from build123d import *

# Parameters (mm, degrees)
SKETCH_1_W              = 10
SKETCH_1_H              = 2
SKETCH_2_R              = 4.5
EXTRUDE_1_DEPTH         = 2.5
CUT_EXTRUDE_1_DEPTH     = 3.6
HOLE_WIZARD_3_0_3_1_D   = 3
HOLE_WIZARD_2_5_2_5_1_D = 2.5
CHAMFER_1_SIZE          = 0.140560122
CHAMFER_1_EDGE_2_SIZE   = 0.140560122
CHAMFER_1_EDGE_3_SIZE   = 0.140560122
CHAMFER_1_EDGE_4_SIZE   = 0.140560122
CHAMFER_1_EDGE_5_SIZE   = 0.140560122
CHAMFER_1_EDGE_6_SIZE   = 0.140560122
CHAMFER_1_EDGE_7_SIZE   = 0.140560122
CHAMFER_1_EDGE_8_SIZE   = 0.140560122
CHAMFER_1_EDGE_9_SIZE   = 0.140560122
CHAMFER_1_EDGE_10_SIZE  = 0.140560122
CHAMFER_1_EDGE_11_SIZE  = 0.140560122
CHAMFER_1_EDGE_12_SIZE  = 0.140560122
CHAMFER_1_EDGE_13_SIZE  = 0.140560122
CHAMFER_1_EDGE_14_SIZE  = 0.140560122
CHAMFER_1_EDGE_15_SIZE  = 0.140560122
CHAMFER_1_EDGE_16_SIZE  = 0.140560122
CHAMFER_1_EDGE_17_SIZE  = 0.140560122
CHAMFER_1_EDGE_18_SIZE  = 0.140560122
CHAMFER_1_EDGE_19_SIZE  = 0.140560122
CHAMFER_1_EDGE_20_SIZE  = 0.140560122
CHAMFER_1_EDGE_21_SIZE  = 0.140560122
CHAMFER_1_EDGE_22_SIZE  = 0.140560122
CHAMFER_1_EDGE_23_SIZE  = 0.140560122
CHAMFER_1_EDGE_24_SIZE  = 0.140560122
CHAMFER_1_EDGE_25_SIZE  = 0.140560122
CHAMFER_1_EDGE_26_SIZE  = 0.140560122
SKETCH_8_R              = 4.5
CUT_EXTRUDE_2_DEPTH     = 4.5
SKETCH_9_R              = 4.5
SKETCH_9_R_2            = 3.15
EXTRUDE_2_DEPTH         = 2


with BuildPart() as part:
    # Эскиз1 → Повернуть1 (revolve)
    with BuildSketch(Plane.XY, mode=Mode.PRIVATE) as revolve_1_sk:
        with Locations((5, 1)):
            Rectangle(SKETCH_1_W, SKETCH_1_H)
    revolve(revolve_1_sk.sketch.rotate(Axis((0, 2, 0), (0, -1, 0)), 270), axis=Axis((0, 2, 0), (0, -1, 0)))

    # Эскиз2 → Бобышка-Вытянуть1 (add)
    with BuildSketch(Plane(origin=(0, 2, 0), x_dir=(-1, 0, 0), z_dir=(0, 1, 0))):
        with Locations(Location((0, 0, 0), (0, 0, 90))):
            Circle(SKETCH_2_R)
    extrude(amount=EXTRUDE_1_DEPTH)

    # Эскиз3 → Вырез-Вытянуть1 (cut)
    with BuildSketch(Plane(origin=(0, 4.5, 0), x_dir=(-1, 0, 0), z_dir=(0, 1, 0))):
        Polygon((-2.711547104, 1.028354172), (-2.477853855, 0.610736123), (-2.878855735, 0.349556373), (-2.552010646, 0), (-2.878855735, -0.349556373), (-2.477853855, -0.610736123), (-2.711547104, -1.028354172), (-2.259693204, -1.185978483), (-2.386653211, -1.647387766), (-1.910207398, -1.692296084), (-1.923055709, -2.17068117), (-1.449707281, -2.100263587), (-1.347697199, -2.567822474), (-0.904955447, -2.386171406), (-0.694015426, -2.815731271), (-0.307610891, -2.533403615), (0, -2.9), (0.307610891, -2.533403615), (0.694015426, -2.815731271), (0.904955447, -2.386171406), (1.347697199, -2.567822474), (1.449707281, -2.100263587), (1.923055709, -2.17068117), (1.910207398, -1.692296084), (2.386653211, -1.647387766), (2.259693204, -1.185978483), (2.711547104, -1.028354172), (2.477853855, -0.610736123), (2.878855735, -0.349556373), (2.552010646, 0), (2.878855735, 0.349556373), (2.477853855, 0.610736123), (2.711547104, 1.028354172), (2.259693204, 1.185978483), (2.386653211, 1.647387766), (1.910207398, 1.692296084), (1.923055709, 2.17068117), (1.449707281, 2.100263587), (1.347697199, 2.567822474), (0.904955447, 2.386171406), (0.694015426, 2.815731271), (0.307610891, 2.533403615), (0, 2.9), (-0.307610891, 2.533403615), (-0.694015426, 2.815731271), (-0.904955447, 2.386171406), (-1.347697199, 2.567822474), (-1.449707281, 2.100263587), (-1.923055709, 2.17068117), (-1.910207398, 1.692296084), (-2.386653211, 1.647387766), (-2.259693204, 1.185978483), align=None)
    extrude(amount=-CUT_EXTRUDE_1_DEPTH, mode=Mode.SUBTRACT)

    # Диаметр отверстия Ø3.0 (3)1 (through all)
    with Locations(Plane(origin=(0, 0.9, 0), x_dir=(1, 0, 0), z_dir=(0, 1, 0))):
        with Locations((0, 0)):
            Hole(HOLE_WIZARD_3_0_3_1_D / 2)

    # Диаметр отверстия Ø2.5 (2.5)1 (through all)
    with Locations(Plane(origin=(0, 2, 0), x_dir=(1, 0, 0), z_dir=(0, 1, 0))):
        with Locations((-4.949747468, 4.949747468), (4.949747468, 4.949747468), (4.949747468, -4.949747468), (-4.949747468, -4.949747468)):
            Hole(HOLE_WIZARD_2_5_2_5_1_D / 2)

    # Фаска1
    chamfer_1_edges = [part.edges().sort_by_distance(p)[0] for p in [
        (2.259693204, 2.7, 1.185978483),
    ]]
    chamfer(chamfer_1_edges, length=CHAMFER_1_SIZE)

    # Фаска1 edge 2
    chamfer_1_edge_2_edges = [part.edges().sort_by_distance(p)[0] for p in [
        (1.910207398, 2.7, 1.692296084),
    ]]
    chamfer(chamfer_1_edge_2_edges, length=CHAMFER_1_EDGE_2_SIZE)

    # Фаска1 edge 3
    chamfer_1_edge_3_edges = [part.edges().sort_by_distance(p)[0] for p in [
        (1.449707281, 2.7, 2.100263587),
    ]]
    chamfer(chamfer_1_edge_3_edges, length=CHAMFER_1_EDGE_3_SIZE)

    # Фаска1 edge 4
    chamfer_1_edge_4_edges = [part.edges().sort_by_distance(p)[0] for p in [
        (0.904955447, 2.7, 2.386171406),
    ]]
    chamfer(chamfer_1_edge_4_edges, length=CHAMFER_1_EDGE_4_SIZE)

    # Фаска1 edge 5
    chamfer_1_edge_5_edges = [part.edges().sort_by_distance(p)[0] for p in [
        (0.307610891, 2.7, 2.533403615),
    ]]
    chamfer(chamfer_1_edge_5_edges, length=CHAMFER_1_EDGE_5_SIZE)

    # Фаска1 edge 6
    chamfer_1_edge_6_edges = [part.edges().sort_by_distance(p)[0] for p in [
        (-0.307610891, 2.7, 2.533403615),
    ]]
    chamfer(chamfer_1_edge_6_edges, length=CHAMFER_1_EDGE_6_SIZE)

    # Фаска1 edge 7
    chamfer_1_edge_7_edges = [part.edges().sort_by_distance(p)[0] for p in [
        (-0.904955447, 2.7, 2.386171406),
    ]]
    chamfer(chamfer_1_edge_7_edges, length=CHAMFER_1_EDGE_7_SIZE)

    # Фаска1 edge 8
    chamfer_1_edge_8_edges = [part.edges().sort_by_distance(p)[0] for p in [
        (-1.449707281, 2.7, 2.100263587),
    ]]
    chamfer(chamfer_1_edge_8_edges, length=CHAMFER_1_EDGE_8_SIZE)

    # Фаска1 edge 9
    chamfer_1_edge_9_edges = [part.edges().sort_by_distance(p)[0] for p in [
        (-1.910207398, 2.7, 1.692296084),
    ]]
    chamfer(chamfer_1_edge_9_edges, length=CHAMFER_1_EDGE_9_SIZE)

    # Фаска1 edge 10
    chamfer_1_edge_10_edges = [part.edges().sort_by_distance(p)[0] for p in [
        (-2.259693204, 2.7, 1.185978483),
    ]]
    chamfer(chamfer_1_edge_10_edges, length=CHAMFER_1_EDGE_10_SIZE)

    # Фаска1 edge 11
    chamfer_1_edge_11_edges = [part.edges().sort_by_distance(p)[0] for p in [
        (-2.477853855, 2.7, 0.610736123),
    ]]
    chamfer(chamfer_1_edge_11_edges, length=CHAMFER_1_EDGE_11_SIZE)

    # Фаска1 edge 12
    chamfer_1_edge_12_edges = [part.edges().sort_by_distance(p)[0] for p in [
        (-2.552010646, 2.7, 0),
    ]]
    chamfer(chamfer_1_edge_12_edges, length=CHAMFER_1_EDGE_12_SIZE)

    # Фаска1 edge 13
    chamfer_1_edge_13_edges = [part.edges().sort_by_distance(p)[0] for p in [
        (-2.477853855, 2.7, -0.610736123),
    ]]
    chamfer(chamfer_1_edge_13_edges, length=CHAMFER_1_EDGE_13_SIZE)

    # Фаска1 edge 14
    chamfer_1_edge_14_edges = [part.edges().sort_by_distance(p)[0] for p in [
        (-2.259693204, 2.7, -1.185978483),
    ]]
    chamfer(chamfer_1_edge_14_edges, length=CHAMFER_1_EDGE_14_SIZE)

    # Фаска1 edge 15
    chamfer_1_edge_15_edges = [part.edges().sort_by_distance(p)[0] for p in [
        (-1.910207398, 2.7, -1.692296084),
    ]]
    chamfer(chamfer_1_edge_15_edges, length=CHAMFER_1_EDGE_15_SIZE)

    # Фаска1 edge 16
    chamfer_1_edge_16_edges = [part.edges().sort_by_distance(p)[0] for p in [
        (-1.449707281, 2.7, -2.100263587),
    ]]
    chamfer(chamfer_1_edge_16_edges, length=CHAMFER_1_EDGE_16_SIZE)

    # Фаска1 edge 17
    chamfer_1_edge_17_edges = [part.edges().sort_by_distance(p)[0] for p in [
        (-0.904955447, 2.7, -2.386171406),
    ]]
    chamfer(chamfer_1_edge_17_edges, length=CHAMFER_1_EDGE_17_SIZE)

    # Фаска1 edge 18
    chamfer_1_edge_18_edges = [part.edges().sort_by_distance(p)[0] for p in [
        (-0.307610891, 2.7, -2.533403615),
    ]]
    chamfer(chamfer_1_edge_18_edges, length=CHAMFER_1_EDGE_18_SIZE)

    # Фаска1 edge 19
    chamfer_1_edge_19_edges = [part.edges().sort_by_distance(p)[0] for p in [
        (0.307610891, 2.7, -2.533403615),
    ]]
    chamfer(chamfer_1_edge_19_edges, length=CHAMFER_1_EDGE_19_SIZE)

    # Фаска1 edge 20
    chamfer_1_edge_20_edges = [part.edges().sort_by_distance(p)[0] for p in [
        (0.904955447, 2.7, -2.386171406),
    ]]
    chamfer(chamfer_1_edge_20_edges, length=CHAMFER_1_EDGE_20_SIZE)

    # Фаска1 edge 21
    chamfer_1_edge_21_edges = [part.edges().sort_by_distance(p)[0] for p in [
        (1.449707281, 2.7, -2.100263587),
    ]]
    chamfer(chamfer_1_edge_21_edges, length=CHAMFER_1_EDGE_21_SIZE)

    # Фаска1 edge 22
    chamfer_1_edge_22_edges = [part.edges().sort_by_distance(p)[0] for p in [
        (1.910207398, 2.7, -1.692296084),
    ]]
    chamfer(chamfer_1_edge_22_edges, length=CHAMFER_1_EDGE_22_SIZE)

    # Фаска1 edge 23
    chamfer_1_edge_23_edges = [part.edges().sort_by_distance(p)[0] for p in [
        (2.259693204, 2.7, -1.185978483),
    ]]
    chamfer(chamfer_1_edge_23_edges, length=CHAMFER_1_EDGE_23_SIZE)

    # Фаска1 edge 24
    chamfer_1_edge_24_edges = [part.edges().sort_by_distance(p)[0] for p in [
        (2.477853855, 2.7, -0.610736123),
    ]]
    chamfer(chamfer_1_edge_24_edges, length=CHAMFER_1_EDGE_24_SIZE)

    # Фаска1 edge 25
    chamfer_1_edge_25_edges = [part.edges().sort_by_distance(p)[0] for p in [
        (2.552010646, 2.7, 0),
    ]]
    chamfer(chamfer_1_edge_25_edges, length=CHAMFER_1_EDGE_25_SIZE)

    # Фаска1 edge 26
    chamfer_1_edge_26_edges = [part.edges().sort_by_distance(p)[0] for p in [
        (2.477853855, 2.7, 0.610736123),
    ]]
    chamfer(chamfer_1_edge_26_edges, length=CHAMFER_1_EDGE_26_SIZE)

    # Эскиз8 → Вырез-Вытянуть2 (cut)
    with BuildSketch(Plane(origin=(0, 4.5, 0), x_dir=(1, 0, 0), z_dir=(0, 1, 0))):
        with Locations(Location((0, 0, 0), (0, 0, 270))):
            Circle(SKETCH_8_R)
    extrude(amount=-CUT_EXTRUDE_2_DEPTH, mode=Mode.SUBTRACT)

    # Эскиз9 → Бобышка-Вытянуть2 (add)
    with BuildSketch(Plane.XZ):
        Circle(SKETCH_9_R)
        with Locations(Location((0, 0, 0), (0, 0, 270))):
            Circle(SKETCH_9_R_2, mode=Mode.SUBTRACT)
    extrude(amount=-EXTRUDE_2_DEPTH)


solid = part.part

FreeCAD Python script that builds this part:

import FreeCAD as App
import Part
import Sketcher
from FreeCAD import Vector
Q = App.Units.Quantity


def edges_at(feature, points):
    """Names of the edges that pass closest to the given points."""
    edges = feature.Shape.Edges
    near = lambda p: min(range(len(edges)), key=lambda i: edges[i].distToShape(Part.Vertex(*p))[0])
    return sorted({f"Edge{near(p) + 1}" for p in points})

doc = App.newDocument("Part")
body = doc.addObject("PartDesign::Body", "Body")

# Sketch on XY plane
sketch1 = body.newObject("Sketcher::SketchObject", "Sketch")
sketch1.AttachmentSupport = (doc.getObject("XY_Plane"), [""])
sketch1.MapMode = "FlatFace"
sketch1.addGeometry(Part.LineSegment(Vector(0, 2, 0), Vector(0, 0, 0)), False)
sketch1.addGeometry(Part.LineSegment(Vector(0, 0, 0), Vector(10, 0, 0)), False)
sketch1.addGeometry(Part.LineSegment(Vector(10, 0, 0), Vector(10, 2, 0)), False)
sketch1.addGeometry(Part.LineSegment(Vector(10, 2, 0), Vector(0, 2, 0)), False)
sketch1.addConstraint(Sketcher.Constraint("Coincident", 0, 2, 1, 1))
sketch1.addConstraint(Sketcher.Constraint("Coincident", 1, 2, 2, 1))
sketch1.addConstraint(Sketcher.Constraint("Coincident", 2, 2, 3, 1))
sketch1.addConstraint(Sketcher.Constraint("Coincident", 3, 2, 0, 1))
sketch1.addConstraint(Sketcher.Constraint("Vertical", 0))
sketch1.addConstraint(Sketcher.Constraint("Horizontal", 1))
sketch1.addConstraint(Sketcher.Constraint("Vertical", 2))
sketch1.addConstraint(Sketcher.Constraint("Horizontal", 3))
sketch1.addConstraint(Sketcher.Constraint("Coincident", 0, 2, -1, 1))
sketch1.addConstraint(Sketcher.Constraint("DistanceX", 1, 1, 1, 2, Q("10 mm")))
sketch1.addConstraint(Sketcher.Constraint("DistanceY", 0, 2, 0, 1, Q("2 mm")))
revolution = body.newObject("PartDesign::Revolution", "Revolution")
revolution.Profile = sketch1
revolution.ReferenceAxis = (sketch1, ["V_Axis"])
revolution.Angle = 360

# Sketch on XZ plane
sketch2 = body.newObject("Sketcher::SketchObject", "Sketch001")
sketch2.AttachmentSupport = (doc.getObject("XZ_Plane"), [""])
sketch2.MapMode = "FlatFace"
sketch2.AttachmentOffset = App.Placement(Vector(0, 0, -2), App.Rotation())
sketch2.addGeometry(Part.Circle(Vector(0, 0, 0), Vector(0, 0, 1), 4.5), False)
sketch2.addConstraint(Sketcher.Constraint("Coincident", 0, 3, -1, 1))
sketch2.addConstraint(Sketcher.Constraint("Diameter", 0, Q("9 mm")))
pad1 = body.newObject("PartDesign::Pad", "Pad")
pad1.Profile = sketch2
pad1.Length = 2.5
pad1.Reversed = True

# Sketch on XZ plane
sketch3 = body.newObject("Sketcher::SketchObject", "Sketch002")
sketch3.AttachmentSupport = (doc.getObject("XZ_Plane"), [""])
sketch3.MapMode = "FlatFace"
sketch3.AttachmentOffset = App.Placement(Vector(0, 0, -4.5), App.Rotation())
sketch3.addGeometry(Part.LineSegment(Vector(2.71, 1.03, 0), Vector(2.48, 0.61, 0)), False)
sketch3.addGeometry(Part.LineSegment(Vector(2.48, 0.61, 0), Vector(2.88, 0.35, 0)), False)
sketch3.addGeometry(Part.LineSegment(Vector(2.88, 0.35, 0), Vector(2.55, 0, 0)), False)
sketch3.addGeometry(Part.LineSegment(Vector(2.55, 0, 0), Vector(2.88, -0.35, 0)), False)
sketch3.addGeometry(Part.LineSegment(Vector(2.88, -0.35, 0), Vector(2.48, -0.61, 0)), False)
sketch3.addGeometry(Part.LineSegment(Vector(2.48, -0.61, 0), Vector(2.71, -1.03, 0)), False)
sketch3.addGeometry(Part.LineSegment(Vector(2.71, -1.03, 0), Vector(2.26, -1.19, 0)), False)
sketch3.addGeometry(Part.LineSegment(Vector(2.26, -1.19, 0), Vector(2.39, -1.65, 0)), False)
sketch3.addGeometry(Part.LineSegment(Vector(2.39, -1.65, 0), Vector(1.91, -1.69, 0)), False)
sketch3.addGeometry(Part.LineSegment(Vector(1.91, -1.69, 0), Vector(1.92, -2.17, 0)), False)
sketch3.addGeometry(Part.LineSegment(Vector(1.92, -2.17, 0), Vector(1.45, -2.1, 0)), False)
sketch3.addGeometry(Part.LineSegment(Vector(1.45, -2.1, 0), Vector(1.35, -2.57, 0)), False)
sketch3.addGeometry(Part.LineSegment(Vector(1.35, -2.57, 0), Vector(0.9, -2.39, 0)), False)
sketch3.addGeometry(Part.LineSegment(Vector(0.9, -2.39, 0), Vector(0.69, -2.82, 0)), False)
sketch3.addGeometry(Part.LineSegment(Vector(0.69, -2.82, 0), Vector(0.31, -2.53, 0)), False)
sketch3.addGeometry(Part.LineSegment(Vector(0.31, -2.53, 0), Vector(0, -2.9, 0)), False)
sketch3.addGeometry(Part.LineSegment(Vector(0, -2.9, 0), Vector(-0.31, -2.53, 0)), False)
sketch3.addGeometry(Part.LineSegment(Vector(-0.31, -2.53, 0), Vector(-0.69, -2.82, 0)), False)
sketch3.addGeometry(Part.LineSegment(Vector(-0.69, -2.82, 0), Vector(-0.9, -2.39, 0)), False)
sketch3.addGeometry(Part.LineSegment(Vector(-0.9, -2.39, 0), Vector(-1.35, -2.57, 0)), False)
sketch3.addGeometry(Part.LineSegment(Vector(-1.35, -2.57, 0), Vector(-1.45, -2.1, 0)), False)
sketch3.addGeometry(Part.LineSegment(Vector(-1.45, -2.1, 0), Vector(-1.92, -2.17, 0)), False)
sketch3.addGeometry(Part.LineSegment(Vector(-1.92, -2.17, 0), Vector(-1.91, -1.69, 0)), False)
sketch3.addGeometry(Part.LineSegment(Vector(-1.91, -1.69, 0), Vector(-2.39, -1.65, 0)), False)
sketch3.addGeometry(Part.LineSegment(Vector(-2.39, -1.65, 0), Vector(-2.26, -1.19, 0)), False)
sketch3.addGeometry(Part.LineSegment(Vector(-2.26, -1.19, 0), Vector(-2.71, -1.03, 0)), False)
sketch3.addGeometry(Part.LineSegment(Vector(-2.71, -1.03, 0), Vector(-2.48, -0.61, 0)), False)
sketch3.addGeometry(Part.LineSegment(Vector(-2.48, -0.61, 0), Vector(-2.88, -0.35, 0)), False)
sketch3.addGeometry(Part.LineSegment(Vector(-2.88, -0.35, 0), Vector(-2.55, 0, 0)), False)
sketch3.addGeometry(Part.LineSegment(Vector(-2.55, 0, 0), Vector(-2.88, 0.35, 0)), False)
sketch3.addGeometry(Part.LineSegment(Vector(-2.88, 0.35, 0), Vector(-2.48, 0.61, 0)), False)
sketch3.addGeometry(Part.LineSegment(Vector(-2.48, 0.61, 0), Vector(-2.71, 1.03, 0)), False)
sketch3.addGeometry(Part.LineSegment(Vector(-2.71, 1.03, 0), Vector(-2.26, 1.19, 0)), False)
sketch3.addGeometry(Part.LineSegment(Vector(-2.26, 1.19, 0), Vector(-2.39, 1.65, 0)), False)
sketch3.addGeometry(Part.LineSegment(Vector(-2.39, 1.65, 0), Vector(-1.91, 1.69, 0)), False)
sketch3.addGeometry(Part.LineSegment(Vector(-1.91, 1.69, 0), Vector(-1.92, 2.17, 0)), False)
sketch3.addGeometry(Part.LineSegment(Vector(-1.92, 2.17, 0), Vector(-1.45, 2.1, 0)), False)
sketch3.addGeometry(Part.LineSegment(Vector(-1.45, 2.1, 0), Vector(-1.35, 2.57, 0)), False)
sketch3.addGeometry(Part.LineSegment(Vector(-1.35, 2.57, 0), Vector(-0.9, 2.39, 0)), False)
sketch3.addGeometry(Part.LineSegment(Vector(-0.9, 2.39, 0), Vector(-0.69, 2.82, 0)), False)
sketch3.addGeometry(Part.LineSegment(Vector(-0.69, 2.82, 0), Vector(-0.31, 2.53, 0)), False)
sketch3.addGeometry(Part.LineSegment(Vector(-0.31, 2.53, 0), Vector(0, 2.9, 0)), False)
sketch3.addGeometry(Part.LineSegment(Vector(0, 2.9, 0), Vector(0.31, 2.53, 0)), False)
sketch3.addGeometry(Part.LineSegment(Vector(0.31, 2.53, 0), Vector(0.69, 2.82, 0)), False)
sketch3.addGeometry(Part.LineSegment(Vector(0.69, 2.82, 0), Vector(0.9, 2.39, 0)), False)
sketch3.addGeometry(Part.LineSegment(Vector(0.9, 2.39, 0), Vector(1.35, 2.57, 0)), False)
sketch3.addGeometry(Part.LineSegment(Vector(1.35, 2.57, 0), Vector(1.45, 2.1, 0)), False)
sketch3.addGeometry(Part.LineSegment(Vector(1.45, 2.1, 0), Vector(1.92, 2.17, 0)), False)
sketch3.addGeometry(Part.LineSegment(Vector(1.92, 2.17, 0), Vector(1.91, 1.69, 0)), False)
sketch3.addGeometry(Part.LineSegment(Vector(1.91, 1.69, 0), Vector(2.39, 1.65, 0)), False)
sketch3.addGeometry(Part.LineSegment(Vector(2.39, 1.65, 0), Vector(2.26, 1.19, 0)), False)
sketch3.addGeometry(Part.LineSegment(Vector(2.26, 1.19, 0), Vector(2.71, 1.03, 0)), False)
sketch3.addConstraint(Sketcher.Constraint("Coincident", 0, 2, 1, 1))
sketch3.addConstraint(Sketcher.Constraint("Coincident", 1, 2, 2, 1))
sketch3.addConstraint(Sketcher.Constraint("Coincident", 2, 2, 3, 1))
sketch3.addConstraint(Sketcher.Constraint("Coincident", 3, 2, 4, 1))
sketch3.addConstraint(Sketcher.Constraint("Coincident", 4, 2, 5, 1))
sketch3.addConstraint(Sketcher.Constraint("Coincident", 5, 2, 6, 1))
sketch3.addConstraint(Sketcher.Constraint("Coincident", 6, 2, 7, 1))
sketch3.addConstraint(Sketcher.Constraint("Coincident", 7, 2, 8, 1))
sketch3.addConstraint(Sketcher.Constraint("Coincident", 8, 2, 9, 1))
sketch3.addConstraint(Sketcher.Constraint("Coincident", 9, 2, 10, 1))
sketch3.addConstraint(Sketcher.Constraint("Coincident", 10, 2, 11, 1))
sketch3.addConstraint(Sketcher.Constraint("Coincident", 11, 2, 12, 1))
sketch3.addConstraint(Sketcher.Constraint("Coincident", 12, 2, 13, 1))
sketch3.addConstraint(Sketcher.Constraint("Coincident", 13, 2, 14, 1))
sketch3.addConstraint(Sketcher.Constraint("Coincident", 14, 2, 15, 1))
sketch3.addConstraint(Sketcher.Constraint("Coincident", 15, 2, 16, 1))
sketch3.addConstraint(Sketcher.Constraint("Coincident", 16, 2, 17, 1))
sketch3.addConstraint(Sketcher.Constraint("Coincident", 17, 2, 18, 1))
sketch3.addConstraint(Sketcher.Constraint("Coincident", 18, 2, 19, 1))
sketch3.addConstraint(Sketcher.Constraint("Coincident", 19, 2, 20, 1))
sketch3.addConstraint(Sketcher.Constraint("Coincident", 20, 2, 21, 1))
sketch3.addConstraint(Sketcher.Constraint("Coincident", 21, 2, 22, 1))
sketch3.addConstraint(Sketcher.Constraint("Coincident", 22, 2, 23, 1))
sketch3.addConstraint(Sketcher.Constraint("Coincident", 23, 2, 24, 1))
sketch3.addConstraint(Sketcher.Constraint("Coincident", 24, 2, 25, 1))
sketch3.addConstraint(Sketcher.Constraint("Coincident", 25, 2, 26, 1))
sketch3.addConstraint(Sketcher.Constraint("Coincident", 26, 2, 27, 1))
sketch3.addConstraint(Sketcher.Constraint("Coincident", 27, 2, 28, 1))
sketch3.addConstraint(Sketcher.Constraint("Coincident", 28, 2, 29, 1))
sketch3.addConstraint(Sketcher.Constraint("Coincident", 29, 2, 30, 1))
sketch3.addConstraint(Sketcher.Constraint("Coincident", 30, 2, 31, 1))
sketch3.addConstraint(Sketcher.Constraint("Coincident", 31, 2, 32, 1))
sketch3.addConstraint(Sketcher.Constraint("Coincident", 32, 2, 33, 1))
sketch3.addConstraint(Sketcher.Constraint("Coincident", 33, 2, 34, 1))
sketch3.addConstraint(Sketcher.Constraint("Coincident", 34, 2, 35, 1))
sketch3.addConstraint(Sketcher.Constraint("Coincident", 35, 2, 36, 1))
sketch3.addConstraint(Sketcher.Constraint("Coincident", 36, 2, 37, 1))
sketch3.addConstraint(Sketcher.Constraint("Coincident", 37, 2, 38, 1))
sketch3.addConstraint(Sketcher.Constraint("Coincident", 38, 2, 39, 1))
sketch3.addConstraint(Sketcher.Constraint("Coincident", 39, 2, 40, 1))
sketch3.addConstraint(Sketcher.Constraint("Coincident", 40, 2, 41, 1))
sketch3.addConstraint(Sketcher.Constraint("Coincident", 41, 2, 42, 1))
sketch3.addConstraint(Sketcher.Constraint("Coincident", 42, 2, 43, 1))
sketch3.addConstraint(Sketcher.Constraint("Coincident", 43, 2, 44, 1))
sketch3.addConstraint(Sketcher.Constraint("Coincident", 44, 2, 45, 1))
sketch3.addConstraint(Sketcher.Constraint("Coincident", 45, 2, 46, 1))
sketch3.addConstraint(Sketcher.Constraint("Coincident", 46, 2, 47, 1))
sketch3.addConstraint(Sketcher.Constraint("Coincident", 47, 2, 48, 1))
sketch3.addConstraint(Sketcher.Constraint("Coincident", 48, 2, 49, 1))
sketch3.addConstraint(Sketcher.Constraint("Coincident", 49, 2, 50, 1))
sketch3.addConstraint(Sketcher.Constraint("Coincident", 50, 2, 51, 1))
sketch3.addConstraint(Sketcher.Constraint("Coincident", 51, 2, 0, 1))
sketch3.addConstraint(Sketcher.Constraint("Symmetric", 0, 2, 26, 2, -1, 1))
sketch3.addConstraint(Sketcher.Constraint("Symmetric", 1, 2, 27, 2, -1, 1))
sketch3.addConstraint(Sketcher.Constraint("Symmetric", 2, 2, 28, 2, -1, 1))
sketch3.addConstraint(Sketcher.Constraint("Symmetric", 3, 2, 29, 2, -1, 1))
sketch3.addConstraint(Sketcher.Constraint("Symmetric", 4, 2, 30, 2, -1, 1))
sketch3.addConstraint(Sketcher.Constraint("Symmetric", 5, 2, 31, 2, -1, 1))
sketch3.addConstraint(Sketcher.Constraint("Symmetric", 6, 2, 32, 2, -1, 1))
sketch3.addConstraint(Sketcher.Constraint("Symmetric", 7, 2, 33, 2, -1, 1))
sketch3.addConstraint(Sketcher.Constraint("Symmetric", 8, 2, 34, 2, -1, 1))
sketch3.addConstraint(Sketcher.Constraint("Symmetric", 9, 2, 35, 2, -1, 1))
sketch3.addConstraint(Sketcher.Constraint("Symmetric", 10, 2, 36, 2, -1, 1))
sketch3.addConstraint(Sketcher.Constraint("Symmetric", 11, 2, 37, 2, -1, 1))
sketch3.addConstraint(Sketcher.Constraint("Symmetric", 12, 2, 38, 2, -1, 1))
sketch3.addConstraint(Sketcher.Constraint("Symmetric", 13, 2, 39, 2, -1, 1))
sketch3.addConstraint(Sketcher.Constraint("Symmetric", 14, 2, 40, 2, -1, 1))
sketch3.addConstraint(Sketcher.Constraint("Symmetric", 15, 2, 41, 2, -1, 1))
sketch3.addConstraint(Sketcher.Constraint("Symmetric", 16, 2, 42, 2, -1, 1))
sketch3.addConstraint(Sketcher.Constraint("Symmetric", 17, 2, 43, 2, -1, 1))
sketch3.addConstraint(Sketcher.Constraint("Symmetric", 18, 2, 44, 2, -1, 1))
sketch3.addConstraint(Sketcher.Constraint("Symmetric", 19, 2, 45, 2, -1, 1))
sketch3.addConstraint(Sketcher.Constraint("Symmetric", 20, 2, 46, 2, -1, 1))
sketch3.addConstraint(Sketcher.Constraint("Symmetric", 21, 2, 47, 2, -1, 1))
sketch3.addConstraint(Sketcher.Constraint("Symmetric", 22, 2, 48, 2, -1, 1))
sketch3.addConstraint(Sketcher.Constraint("Symmetric", 23, 2, 49, 2, -1, 1))
sketch3.addConstraint(Sketcher.Constraint("Symmetric", 24, 2, 50, 2, -1, 1))
sketch3.addConstraint(Sketcher.Constraint("Symmetric", 25, 2, 51, 2, -1, 1))
sketch3.addConstraint(Sketcher.Constraint("Symmetric", 14, 2, 16, 2, -2))
sketch3.addConstraint(Sketcher.Constraint("Symmetric", 13, 2, 17, 2, -2))
sketch3.addConstraint(Sketcher.Constraint("Symmetric", 12, 2, 18, 2, -2))
sketch3.addConstraint(Sketcher.Constraint("Symmetric", 11, 2, 19, 2, -2))
sketch3.addConstraint(Sketcher.Constraint("Symmetric", 10, 2, 20, 2, -2))
sketch3.addConstraint(Sketcher.Constraint("Symmetric", 9, 2, 21, 2, -2))
sketch3.addConstraint(Sketcher.Constraint("Symmetric", 8, 2, 22, 2, -2))
sketch3.addConstraint(Sketcher.Constraint("Symmetric", 7, 2, 23, 2, -2))
sketch3.addConstraint(Sketcher.Constraint("Symmetric", 6, 2, 24, 2, -2))
sketch3.addConstraint(Sketcher.Constraint("Symmetric", 5, 2, 25, 2, -2))
sketch3.addConstraint(Sketcher.Constraint("Symmetric", 4, 2, 26, 2, -2))
sketch3.addConstraint(Sketcher.Constraint("Symmetric", 3, 2, 27, 2, -2))
sketch3.addConstraint(Sketcher.Constraint("PointOnObject", 2, 2, -1))
sketch3.addConstraint(Sketcher.Constraint("PointOnObject", 15, 2, -2))
sketch3.addConstraint(Sketcher.Constraint("Equal", 0, 1))
sketch3.addConstraint(Sketcher.Constraint("Equal", 1, 2))
sketch3.addConstraint(Sketcher.Constraint("Equal", 5, 6))
sketch3.addConstraint(Sketcher.Constraint("Equal", 6, 7))
sketch3.addConstraint(Sketcher.Constraint("Equal", 7, 8))
sketch3.addConstraint(Sketcher.Constraint("Equal", 8, 9))
sketch3.addConstraint(Sketcher.Constraint("Equal", 9, 10))
sketch3.addConstraint(Sketcher.Constraint("Equal", 10, 11))
sketch3.addConstraint(Sketcher.Constraint("Equal", 11, 12))
sketch3.addConstraint(Sketcher.Constraint("Equal", 12, 13))
sketch3.addConstraint(Sketcher.Constraint("Equal", 13, 14))
sketch3.addConstraint(Sketcher.Constraint("Equal", 14, 15))
sketch3.addConstraint(Sketcher.Constraint("Angle", 15, Q("-130 deg")))
sketch3.addConstraint(Sketcher.Constraint("DistanceY", 15, 2, -1, 1, Q("2.9 mm")))
sketch3.addConstraint(Sketcher.Constraint("DistanceX", 0, 2, 1, 2, Q("0.401002 mm")))
sketch3.addConstraint(Sketcher.Constraint("DistanceX", 7, 2, 4, 2, Q("0.091201 mm")))
sketch3.addConstraint(Sketcher.Constraint("DistanceX", 9, 2, 4, 2, Q("0.554798 mm")))
sketch3.addConstraint(Sketcher.Constraint("DistanceX", 10, 2, 8, 2, Q("0.4605 mm")))
sketch3.addConstraint(Sketcher.Constraint("DistanceX", 12, 2, 9, 2, Q("1.0181 mm")))
sketch3.addConstraint(Sketcher.Constraint("DistanceX", -1, 1, 2, 2, Q("2.552011 mm")))
sketch3.addConstraint(Sketcher.Constraint("DistanceY", 6, 2, -1, 1, Q("1.185978 mm")))
sketch3.addConstraint(Sketcher.Constraint("DistanceY", 9, 2, -1, 1, Q("2.170681 mm")))
sketch3.addConstraint(Sketcher.Constraint("DistanceY", 12, 2, -1, 1, Q("2.386171 mm")))
sketch3.addConstraint(Sketcher.Constraint("DistanceY", 13, 2, -1, 1, Q("2.815731 mm")))
sketch3.addConstraint(Sketcher.Constraint("DistanceX", -1, 1, 14, 2, Q("0.307611 mm")))
sketch3.addConstraint(Sketcher.Constraint("DistanceY", 5, 2, 4, 2, Q("0.417618 mm")))
pocket1 = body.newObject("PartDesign::Pocket", "Pocket")
pocket1.Profile = sketch3
pocket1.Length = 3.6
pocket1.Reversed = True

# Sketch on XZ plane
sketch4 = body.newObject("Sketcher::SketchObject", "Sketch003")
sketch4.AttachmentSupport = (doc.getObject("XZ_Plane"), [""])
sketch4.MapMode = "FlatFace"
sketch4.AttachmentOffset = App.Placement(Vector(0, 0, -0.9), App.Rotation())
sketch4.addGeometry(Part.Circle(Vector(0, 0, 0), Vector(0, 0, 1), 1.5), False)
sketch4.addConstraint(Sketcher.Constraint("Coincident", 0, 3, -1, 1))
sketch4.addConstraint(Sketcher.Constraint("Diameter", 0, Q("3 mm")))
doc.recompute()
hole = body.newObject("PartDesign::Hole", "Hole")
hole.Profile = sketch4
hole.ThreadType = "None"
hole.Diameter = 3
hole.DepthType = "ThroughAll"
hole.Reversed = True

# Sketch on XZ plane
sketch5 = body.newObject("Sketcher::SketchObject", "Sketch004")
sketch5.AttachmentSupport = (doc.getObject("XZ_Plane"), [""])
sketch5.MapMode = "FlatFace"
sketch5.AttachmentOffset = App.Placement(Vector(0, 0, -2), App.Rotation())
sketch5.addGeometry(Part.Circle(Vector(-4.9, -4.9, 0), Vector(0, 0, 1), 1.2), False)
sketch5.addGeometry(Part.Circle(Vector(4.9, -4.9, 0), Vector(0, 0, 1), 1.2), False)
sketch5.addGeometry(Part.Circle(Vector(4.9, 4.9, 0), Vector(0, 0, 1), 1.2), False)
sketch5.addGeometry(Part.Circle(Vector(-4.9, 4.9, 0), Vector(0, 0, 1), 1.2), False)
sketch5.addConstraint(Sketcher.Constraint("Equal", 0, 1))
sketch5.addConstraint(Sketcher.Constraint("Equal", 1, 2))
sketch5.addConstraint(Sketcher.Constraint("Equal", 2, 3))
sketch5.addConstraint(Sketcher.Constraint("Symmetric", 0, 3, 2, 3, -1, 1))
sketch5.addConstraint(Sketcher.Constraint("Symmetric", 1, 3, 3, 3, -1, 1))
sketch5.addConstraint(Sketcher.Constraint("Symmetric", 0, 3, 1, 3, -2))
sketch5.addConstraint(Sketcher.Constraint("Diameter", 0, Q("2.5 mm")))
sketch5.addConstraint(Sketcher.Constraint("DistanceX", 0, 3, -1, 1, Q("4.949747 mm")))
sketch5.addConstraint(Sketcher.Constraint("DistanceY", 0, 3, -1, 1, Q("4.949747 mm")))
doc.recompute()
hole2 = body.newObject("PartDesign::Hole", "Hole001")
hole2.Profile = sketch5
hole2.ThreadType = "None"
hole2.Diameter = 2.5
hole2.DepthType = "ThroughAll"
hole2.Reversed = True
doc.recompute()

chamfer = body.newObject("PartDesign::Chamfer", "Chamfer")
chamfer.Base = (hole2, edges_at(hole2, [(2.26, 2.7, 1.186)]))
chamfer.Size = 0.14056
doc.recompute()

chamfer2 = body.newObject("PartDesign::Chamfer", "Chamfer001")
chamfer2.Base = (chamfer, edges_at(chamfer, [(1.91, 2.7, 1.692)]))
chamfer2.Size = 0.14056
doc.recompute()

chamfer3 = body.newObject("PartDesign::Chamfer", "Chamfer002")
chamfer3.Base = (chamfer2, edges_at(chamfer2, [(1.45, 2.7, 2.1)]))
chamfer3.Size = 0.14056
doc.recompute()

chamfer4 = body.newObject("PartDesign::Chamfer", "Chamfer003")
chamfer4.Base = (chamfer3, edges_at(chamfer3, [(0.905, 2.7, 2.386)]))
chamfer4.Size = 0.14056
doc.recompute()

chamfer5 = body.newObject("PartDesign::Chamfer", "Chamfer004")
chamfer5.Base = (chamfer4, edges_at(chamfer4, [(0.308, 2.7, 2.533)]))
chamfer5.Size = 0.14056
doc.recompute()

chamfer6 = body.newObject("PartDesign::Chamfer", "Chamfer005")
chamfer6.Base = (chamfer5, edges_at(chamfer5, [(-0.308, 2.7, 2.533)]))
chamfer6.Size = 0.14056
doc.recompute()

chamfer7 = body.newObject("PartDesign::Chamfer", "Chamfer006")
chamfer7.Base = (chamfer6, edges_at(chamfer6, [(-0.905, 2.7, 2.386)]))
chamfer7.Size = 0.14056
doc.recompute()

chamfer8 = body.newObject("PartDesign::Chamfer", "Chamfer007")
chamfer8.Base = (chamfer7, edges_at(chamfer7, [(-1.45, 2.7, 2.1)]))
chamfer8.Size = 0.14056
doc.recompute()

chamfer9 = body.newObject("PartDesign::Chamfer", "Chamfer008")
chamfer9.Base = (chamfer8, edges_at(chamfer8, [(-1.91, 2.7, 1.692)]))
chamfer9.Size = 0.14056
doc.recompute()

chamfer10 = body.newObject("PartDesign::Chamfer", "Chamfer009")
chamfer10.Base = (chamfer9, edges_at(chamfer9, [(-2.26, 2.7, 1.186)]))
chamfer10.Size = 0.14056
doc.recompute()

chamfer11 = body.newObject("PartDesign::Chamfer", "Chamfer010")
chamfer11.Base = (chamfer10, edges_at(chamfer10, [(-2.478, 2.7, 0.611)]))
chamfer11.Size = 0.14056
doc.recompute()

chamfer12 = body.newObject("PartDesign::Chamfer", "Chamfer011")
chamfer12.Base = (chamfer11, edges_at(chamfer11, [(-2.552, 2.7, 0)]))
chamfer12.Size = 0.14056
doc.recompute()

chamfer13 = body.newObject("PartDesign::Chamfer", "Chamfer012")
chamfer13.Base = (chamfer12, edges_at(chamfer12, [(-2.478, 2.7, -0.611)]))
chamfer13.Size = 0.14056
doc.recompute()

chamfer14 = body.newObject("PartDesign::Chamfer", "Chamfer013")
chamfer14.Base = (chamfer13, edges_at(chamfer13, [(-2.26, 2.7, -1.186)]))
chamfer14.Size = 0.14056
doc.recompute()

chamfer15 = body.newObject("PartDesign::Chamfer", "Chamfer014")
chamfer15.Base = (chamfer14, edges_at(chamfer14, [(-1.91, 2.7, -1.692)]))
chamfer15.Size = 0.14056
doc.recompute()

chamfer16 = body.newObject("PartDesign::Chamfer", "Chamfer015")
chamfer16.Base = (chamfer15, edges_at(chamfer15, [(-1.45, 2.7, -2.1)]))
chamfer16.Size = 0.14056
doc.recompute()

chamfer17 = body.newObject("PartDesign::Chamfer", "Chamfer016")
chamfer17.Base = (chamfer16, edges_at(chamfer16, [(-0.905, 2.7, -2.386)]))
chamfer17.Size = 0.14056
doc.recompute()

chamfer18 = body.newObject("PartDesign::Chamfer", "Chamfer017")
chamfer18.Base = (chamfer17, edges_at(chamfer17, [(-0.308, 2.7, -2.533)]))
chamfer18.Size = 0.14056
doc.recompute()

chamfer19 = body.newObject("PartDesign::Chamfer", "Chamfer018")
chamfer19.Base = (chamfer18, edges_at(chamfer18, [(0.308, 2.7, -2.533)]))
chamfer19.Size = 0.14056
doc.recompute()

chamfer20 = body.newObject("PartDesign::Chamfer", "Chamfer019")
chamfer20.Base = (chamfer19, edges_at(chamfer19, [(0.905, 2.7, -2.386)]))
chamfer20.Size = 0.14056
doc.recompute()

chamfer21 = body.newObject("PartDesign::Chamfer", "Chamfer020")
chamfer21.Base = (chamfer20, edges_at(chamfer20, [(1.45, 2.7, -2.1)]))
chamfer21.Size = 0.14056
doc.recompute()

chamfer22 = body.newObject("PartDesign::Chamfer", "Chamfer021")
chamfer22.Base = (chamfer21, edges_at(chamfer21, [(1.91, 2.7, -1.692)]))
chamfer22.Size = 0.14056
doc.recompute()

chamfer23 = body.newObject("PartDesign::Chamfer", "Chamfer022")
chamfer23.Base = (chamfer22, edges_at(chamfer22, [(2.26, 2.7, -1.186)]))
chamfer23.Size = 0.14056
doc.recompute()

chamfer24 = body.newObject("PartDesign::Chamfer", "Chamfer023")
chamfer24.Base = (chamfer23, edges_at(chamfer23, [(2.478, 2.7, -0.611)]))
chamfer24.Size = 0.14056
doc.recompute()

chamfer25 = body.newObject("PartDesign::Chamfer", "Chamfer024")
chamfer25.Base = (chamfer24, edges_at(chamfer24, [(2.552, 2.7, 0)]))
chamfer25.Size = 0.14056
doc.recompute()

chamfer26 = body.newObject("PartDesign::Chamfer", "Chamfer025")
chamfer26.Base = (chamfer25, edges_at(chamfer25, [(2.478, 2.7, 0.611)]))
chamfer26.Size = 0.14056

# Sketch on XZ plane
sketch6 = body.newObject("Sketcher::SketchObject", "Sketch005")
sketch6.AttachmentSupport = (doc.getObject("XZ_Plane"), [""])
sketch6.MapMode = "FlatFace"
sketch6.AttachmentOffset = App.Placement(Vector(0, 0, -4.5), App.Rotation())
sketch6.addGeometry(Part.Circle(Vector(0, 0, 0), Vector(0, 0, 1), 4.5), False)
sketch6.addConstraint(Sketcher.Constraint("Coincident", 0, 3, -1, 1))
sketch6.addConstraint(Sketcher.Constraint("Diameter", 0, Q("9 mm")))
pocket2 = body.newObject("PartDesign::Pocket", "Pocket001")
pocket2.Profile = sketch6
pocket2.Length = 4.5
pocket2.Reversed = True

# Sketch on XZ plane
sketch7 = body.newObject("Sketcher::SketchObject", "Sketch006")
sketch7.AttachmentSupport = (doc.getObject("XZ_Plane"), [""])
sketch7.MapMode = "FlatFace"
sketch7.addGeometry(Part.Circle(Vector(0, 0, 0), Vector(0, 0, 1), 4.5), False)
sketch7.addGeometry(Part.Circle(Vector(0, 0, 0), Vector(0, 0, 1), 3.1), False)
sketch7.addConstraint(Sketcher.Constraint("Coincident", 0, 3, -1, 1))
sketch7.addConstraint(Sketcher.Constraint("Coincident", 1, 3, -1, 1))
sketch7.addConstraint(Sketcher.Constraint("Diameter", 0, Q("9 mm")))
sketch7.addConstraint(Sketcher.Constraint("Diameter", 1, Q("6.3 mm")))
pad2 = body.newObject("PartDesign::Pad", "Pad001")
pad2.Profile = sketch7
pad2.Length = 2
pad2.Reversed = True

doc.recompute()
